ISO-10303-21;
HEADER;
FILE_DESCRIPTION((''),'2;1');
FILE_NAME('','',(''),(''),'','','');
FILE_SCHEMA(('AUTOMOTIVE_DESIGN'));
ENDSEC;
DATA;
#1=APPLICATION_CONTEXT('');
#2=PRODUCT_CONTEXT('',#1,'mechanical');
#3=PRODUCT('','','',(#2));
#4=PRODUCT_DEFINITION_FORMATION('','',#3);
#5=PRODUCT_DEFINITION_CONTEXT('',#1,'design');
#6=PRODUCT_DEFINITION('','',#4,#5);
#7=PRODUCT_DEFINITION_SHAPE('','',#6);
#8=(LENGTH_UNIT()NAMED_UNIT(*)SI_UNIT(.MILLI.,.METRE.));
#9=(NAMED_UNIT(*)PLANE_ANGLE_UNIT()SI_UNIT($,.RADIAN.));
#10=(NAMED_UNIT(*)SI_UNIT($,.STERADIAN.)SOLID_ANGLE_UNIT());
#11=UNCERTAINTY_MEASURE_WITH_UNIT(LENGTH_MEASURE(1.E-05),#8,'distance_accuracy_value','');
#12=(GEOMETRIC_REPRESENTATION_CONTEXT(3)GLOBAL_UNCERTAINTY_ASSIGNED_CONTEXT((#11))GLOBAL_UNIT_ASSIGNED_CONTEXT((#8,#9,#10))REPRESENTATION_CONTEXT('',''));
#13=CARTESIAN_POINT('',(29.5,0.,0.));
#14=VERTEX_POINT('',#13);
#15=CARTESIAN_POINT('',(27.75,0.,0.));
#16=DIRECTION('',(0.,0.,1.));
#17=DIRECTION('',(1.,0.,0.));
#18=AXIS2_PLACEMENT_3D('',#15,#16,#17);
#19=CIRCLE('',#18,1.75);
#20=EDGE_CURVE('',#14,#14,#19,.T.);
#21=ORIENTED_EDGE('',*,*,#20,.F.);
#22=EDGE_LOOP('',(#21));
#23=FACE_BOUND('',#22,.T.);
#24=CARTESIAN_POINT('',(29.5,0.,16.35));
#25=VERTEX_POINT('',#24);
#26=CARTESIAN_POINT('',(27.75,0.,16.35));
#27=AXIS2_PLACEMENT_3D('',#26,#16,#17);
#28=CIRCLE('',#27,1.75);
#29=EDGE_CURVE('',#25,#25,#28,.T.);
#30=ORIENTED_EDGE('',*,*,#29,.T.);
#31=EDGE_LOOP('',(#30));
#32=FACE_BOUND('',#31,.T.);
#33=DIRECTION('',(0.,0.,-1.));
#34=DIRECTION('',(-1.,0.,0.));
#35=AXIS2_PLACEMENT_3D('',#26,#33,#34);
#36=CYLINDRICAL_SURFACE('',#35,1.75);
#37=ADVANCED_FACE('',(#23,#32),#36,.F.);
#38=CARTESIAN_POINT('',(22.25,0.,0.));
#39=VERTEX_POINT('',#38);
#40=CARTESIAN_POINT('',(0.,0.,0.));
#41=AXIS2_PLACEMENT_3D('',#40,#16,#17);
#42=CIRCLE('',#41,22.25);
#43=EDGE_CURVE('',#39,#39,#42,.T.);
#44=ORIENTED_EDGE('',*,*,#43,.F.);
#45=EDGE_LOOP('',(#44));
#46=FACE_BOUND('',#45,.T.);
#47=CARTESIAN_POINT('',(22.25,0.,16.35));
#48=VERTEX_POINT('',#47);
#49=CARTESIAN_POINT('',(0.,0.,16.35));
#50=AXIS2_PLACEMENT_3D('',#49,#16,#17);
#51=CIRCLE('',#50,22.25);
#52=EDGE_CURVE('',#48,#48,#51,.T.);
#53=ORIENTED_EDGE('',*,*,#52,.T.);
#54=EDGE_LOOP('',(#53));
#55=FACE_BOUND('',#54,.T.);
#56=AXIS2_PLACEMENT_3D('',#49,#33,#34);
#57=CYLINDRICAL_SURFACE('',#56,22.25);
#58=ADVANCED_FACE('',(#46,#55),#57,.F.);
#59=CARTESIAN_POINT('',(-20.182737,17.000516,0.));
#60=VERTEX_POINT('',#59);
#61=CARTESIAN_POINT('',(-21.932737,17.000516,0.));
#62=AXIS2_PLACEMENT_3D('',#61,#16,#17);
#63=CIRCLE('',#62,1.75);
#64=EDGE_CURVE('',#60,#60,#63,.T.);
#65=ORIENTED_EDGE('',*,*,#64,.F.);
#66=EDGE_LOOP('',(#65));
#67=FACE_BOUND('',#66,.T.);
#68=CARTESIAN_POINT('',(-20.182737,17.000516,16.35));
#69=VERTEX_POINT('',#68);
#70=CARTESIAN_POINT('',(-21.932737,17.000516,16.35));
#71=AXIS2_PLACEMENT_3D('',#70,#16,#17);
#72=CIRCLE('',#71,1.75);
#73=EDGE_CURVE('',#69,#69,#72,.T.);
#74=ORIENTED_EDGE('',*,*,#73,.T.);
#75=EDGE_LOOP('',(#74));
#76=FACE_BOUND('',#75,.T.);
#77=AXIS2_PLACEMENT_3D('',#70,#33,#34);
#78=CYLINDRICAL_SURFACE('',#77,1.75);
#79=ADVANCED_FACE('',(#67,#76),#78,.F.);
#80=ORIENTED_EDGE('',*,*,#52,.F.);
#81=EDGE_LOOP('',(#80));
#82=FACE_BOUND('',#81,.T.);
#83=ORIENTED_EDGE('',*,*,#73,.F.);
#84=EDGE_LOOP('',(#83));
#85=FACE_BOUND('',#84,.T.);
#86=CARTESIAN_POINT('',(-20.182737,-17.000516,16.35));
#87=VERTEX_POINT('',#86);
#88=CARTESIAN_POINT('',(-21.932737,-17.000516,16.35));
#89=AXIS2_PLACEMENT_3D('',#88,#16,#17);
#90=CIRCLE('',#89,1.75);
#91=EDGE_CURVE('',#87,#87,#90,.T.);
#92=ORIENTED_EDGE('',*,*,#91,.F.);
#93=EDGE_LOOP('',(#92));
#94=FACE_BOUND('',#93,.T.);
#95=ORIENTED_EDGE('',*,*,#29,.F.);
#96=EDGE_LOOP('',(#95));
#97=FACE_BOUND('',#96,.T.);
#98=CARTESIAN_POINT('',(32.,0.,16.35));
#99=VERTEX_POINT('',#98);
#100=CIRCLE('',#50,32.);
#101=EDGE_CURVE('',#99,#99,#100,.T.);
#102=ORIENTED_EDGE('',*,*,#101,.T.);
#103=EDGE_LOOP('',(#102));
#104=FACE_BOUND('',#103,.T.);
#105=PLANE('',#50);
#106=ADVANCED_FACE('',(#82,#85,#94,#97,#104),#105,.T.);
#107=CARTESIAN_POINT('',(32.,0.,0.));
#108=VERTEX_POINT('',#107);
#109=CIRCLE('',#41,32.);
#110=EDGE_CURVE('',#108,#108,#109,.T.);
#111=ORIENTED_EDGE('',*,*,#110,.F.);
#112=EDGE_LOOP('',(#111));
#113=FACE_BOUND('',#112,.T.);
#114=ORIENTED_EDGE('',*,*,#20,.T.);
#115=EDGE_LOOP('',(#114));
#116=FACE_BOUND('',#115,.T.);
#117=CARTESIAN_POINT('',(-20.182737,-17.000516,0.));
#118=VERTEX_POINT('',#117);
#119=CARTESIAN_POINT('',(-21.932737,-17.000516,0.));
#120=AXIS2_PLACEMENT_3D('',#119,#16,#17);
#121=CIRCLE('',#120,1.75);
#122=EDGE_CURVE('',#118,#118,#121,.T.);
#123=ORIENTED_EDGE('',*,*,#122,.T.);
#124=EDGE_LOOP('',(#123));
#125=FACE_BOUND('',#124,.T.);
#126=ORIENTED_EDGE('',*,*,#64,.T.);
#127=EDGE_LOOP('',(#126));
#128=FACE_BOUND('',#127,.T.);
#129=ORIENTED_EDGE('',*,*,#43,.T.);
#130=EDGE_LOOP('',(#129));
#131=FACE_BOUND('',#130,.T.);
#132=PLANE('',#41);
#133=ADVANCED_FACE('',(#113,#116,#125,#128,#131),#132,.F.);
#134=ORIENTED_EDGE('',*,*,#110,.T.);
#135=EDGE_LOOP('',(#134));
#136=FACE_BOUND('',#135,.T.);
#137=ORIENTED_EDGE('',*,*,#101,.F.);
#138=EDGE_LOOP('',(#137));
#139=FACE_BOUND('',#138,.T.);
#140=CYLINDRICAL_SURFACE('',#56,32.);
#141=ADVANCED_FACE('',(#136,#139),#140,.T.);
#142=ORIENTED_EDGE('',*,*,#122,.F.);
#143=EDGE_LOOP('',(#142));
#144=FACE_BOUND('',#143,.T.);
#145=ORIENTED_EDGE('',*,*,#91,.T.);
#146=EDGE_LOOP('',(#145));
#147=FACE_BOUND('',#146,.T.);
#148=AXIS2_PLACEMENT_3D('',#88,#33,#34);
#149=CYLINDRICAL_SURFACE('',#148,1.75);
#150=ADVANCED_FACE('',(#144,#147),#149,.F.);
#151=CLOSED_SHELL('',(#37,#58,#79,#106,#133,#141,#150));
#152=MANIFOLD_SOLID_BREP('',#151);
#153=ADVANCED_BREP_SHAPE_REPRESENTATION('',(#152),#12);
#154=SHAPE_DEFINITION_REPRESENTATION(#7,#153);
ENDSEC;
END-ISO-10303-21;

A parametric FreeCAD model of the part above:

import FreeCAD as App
import Part
import Sketcher

V = App.Vector
Q = App.Units.Quantity

doc = App.newDocument("Part")
body = doc.addObject("PartDesign::Body", "Body")

sketch1 = body.newObject("Sketcher::SketchObject", "Sketch")
sketch1.AttachmentSupport = (doc.getObject("XY_Plane"), [""])
sketch1.MapMode = "FlatFace"
sketch1.addGeometry([
    Part.Circle(V(0, 0, 0), V(0, 0, 1), 32),
    Part.Circle(V(-21.9, -17, 0), V(0, 0, 1), 1.8),
    Part.Circle(V(0, 0, 0), V(0, 0, 1), 22.2),
    Part.Circle(V(-21.9, 17, 0), V(0, 0, 1), 1.8),
    Part.Circle(V(27.8, 0, 0), V(0, 0, 1), 1.8),
], False)
sketch1.addConstraint([
    Sketcher.Constraint("Coincident", 0, 3, -1, 1),
    Sketcher.Constraint("Coincident", 2, 3, -1, 1),
    Sketcher.Constraint("Equal", 1, 3),
    Sketcher.Constraint("Equal", 3, 4),
    Sketcher.Constraint("Symmetric", 1, 3, 3, 3, -1),
    Sketcher.Constraint("PointOnObject", 4, 3, -1),
    Sketcher.Constraint("Diameter", 0, Q("64 mm")),
    Sketcher.Constraint("Diameter", 1, Q("3.5 mm")),
    Sketcher.Constraint("Diameter", 2, Q("44.5 mm")),
    Sketcher.Constraint("DistanceX", -1, 1, 4, 3, Q("27.75 mm")),
    Sketcher.Constraint("DistanceY", 1, 3, 3, 3, Q("34.001032 mm")),
    Sketcher.Constraint("DistanceX", 1, 3, -1, 1, Q("21.932737 mm")),
])
pad1 = body.newObject("PartDesign::Pad", "Pad")
pad1.Profile = sketch1
pad1.Length = 16.35

doc.recompute()
